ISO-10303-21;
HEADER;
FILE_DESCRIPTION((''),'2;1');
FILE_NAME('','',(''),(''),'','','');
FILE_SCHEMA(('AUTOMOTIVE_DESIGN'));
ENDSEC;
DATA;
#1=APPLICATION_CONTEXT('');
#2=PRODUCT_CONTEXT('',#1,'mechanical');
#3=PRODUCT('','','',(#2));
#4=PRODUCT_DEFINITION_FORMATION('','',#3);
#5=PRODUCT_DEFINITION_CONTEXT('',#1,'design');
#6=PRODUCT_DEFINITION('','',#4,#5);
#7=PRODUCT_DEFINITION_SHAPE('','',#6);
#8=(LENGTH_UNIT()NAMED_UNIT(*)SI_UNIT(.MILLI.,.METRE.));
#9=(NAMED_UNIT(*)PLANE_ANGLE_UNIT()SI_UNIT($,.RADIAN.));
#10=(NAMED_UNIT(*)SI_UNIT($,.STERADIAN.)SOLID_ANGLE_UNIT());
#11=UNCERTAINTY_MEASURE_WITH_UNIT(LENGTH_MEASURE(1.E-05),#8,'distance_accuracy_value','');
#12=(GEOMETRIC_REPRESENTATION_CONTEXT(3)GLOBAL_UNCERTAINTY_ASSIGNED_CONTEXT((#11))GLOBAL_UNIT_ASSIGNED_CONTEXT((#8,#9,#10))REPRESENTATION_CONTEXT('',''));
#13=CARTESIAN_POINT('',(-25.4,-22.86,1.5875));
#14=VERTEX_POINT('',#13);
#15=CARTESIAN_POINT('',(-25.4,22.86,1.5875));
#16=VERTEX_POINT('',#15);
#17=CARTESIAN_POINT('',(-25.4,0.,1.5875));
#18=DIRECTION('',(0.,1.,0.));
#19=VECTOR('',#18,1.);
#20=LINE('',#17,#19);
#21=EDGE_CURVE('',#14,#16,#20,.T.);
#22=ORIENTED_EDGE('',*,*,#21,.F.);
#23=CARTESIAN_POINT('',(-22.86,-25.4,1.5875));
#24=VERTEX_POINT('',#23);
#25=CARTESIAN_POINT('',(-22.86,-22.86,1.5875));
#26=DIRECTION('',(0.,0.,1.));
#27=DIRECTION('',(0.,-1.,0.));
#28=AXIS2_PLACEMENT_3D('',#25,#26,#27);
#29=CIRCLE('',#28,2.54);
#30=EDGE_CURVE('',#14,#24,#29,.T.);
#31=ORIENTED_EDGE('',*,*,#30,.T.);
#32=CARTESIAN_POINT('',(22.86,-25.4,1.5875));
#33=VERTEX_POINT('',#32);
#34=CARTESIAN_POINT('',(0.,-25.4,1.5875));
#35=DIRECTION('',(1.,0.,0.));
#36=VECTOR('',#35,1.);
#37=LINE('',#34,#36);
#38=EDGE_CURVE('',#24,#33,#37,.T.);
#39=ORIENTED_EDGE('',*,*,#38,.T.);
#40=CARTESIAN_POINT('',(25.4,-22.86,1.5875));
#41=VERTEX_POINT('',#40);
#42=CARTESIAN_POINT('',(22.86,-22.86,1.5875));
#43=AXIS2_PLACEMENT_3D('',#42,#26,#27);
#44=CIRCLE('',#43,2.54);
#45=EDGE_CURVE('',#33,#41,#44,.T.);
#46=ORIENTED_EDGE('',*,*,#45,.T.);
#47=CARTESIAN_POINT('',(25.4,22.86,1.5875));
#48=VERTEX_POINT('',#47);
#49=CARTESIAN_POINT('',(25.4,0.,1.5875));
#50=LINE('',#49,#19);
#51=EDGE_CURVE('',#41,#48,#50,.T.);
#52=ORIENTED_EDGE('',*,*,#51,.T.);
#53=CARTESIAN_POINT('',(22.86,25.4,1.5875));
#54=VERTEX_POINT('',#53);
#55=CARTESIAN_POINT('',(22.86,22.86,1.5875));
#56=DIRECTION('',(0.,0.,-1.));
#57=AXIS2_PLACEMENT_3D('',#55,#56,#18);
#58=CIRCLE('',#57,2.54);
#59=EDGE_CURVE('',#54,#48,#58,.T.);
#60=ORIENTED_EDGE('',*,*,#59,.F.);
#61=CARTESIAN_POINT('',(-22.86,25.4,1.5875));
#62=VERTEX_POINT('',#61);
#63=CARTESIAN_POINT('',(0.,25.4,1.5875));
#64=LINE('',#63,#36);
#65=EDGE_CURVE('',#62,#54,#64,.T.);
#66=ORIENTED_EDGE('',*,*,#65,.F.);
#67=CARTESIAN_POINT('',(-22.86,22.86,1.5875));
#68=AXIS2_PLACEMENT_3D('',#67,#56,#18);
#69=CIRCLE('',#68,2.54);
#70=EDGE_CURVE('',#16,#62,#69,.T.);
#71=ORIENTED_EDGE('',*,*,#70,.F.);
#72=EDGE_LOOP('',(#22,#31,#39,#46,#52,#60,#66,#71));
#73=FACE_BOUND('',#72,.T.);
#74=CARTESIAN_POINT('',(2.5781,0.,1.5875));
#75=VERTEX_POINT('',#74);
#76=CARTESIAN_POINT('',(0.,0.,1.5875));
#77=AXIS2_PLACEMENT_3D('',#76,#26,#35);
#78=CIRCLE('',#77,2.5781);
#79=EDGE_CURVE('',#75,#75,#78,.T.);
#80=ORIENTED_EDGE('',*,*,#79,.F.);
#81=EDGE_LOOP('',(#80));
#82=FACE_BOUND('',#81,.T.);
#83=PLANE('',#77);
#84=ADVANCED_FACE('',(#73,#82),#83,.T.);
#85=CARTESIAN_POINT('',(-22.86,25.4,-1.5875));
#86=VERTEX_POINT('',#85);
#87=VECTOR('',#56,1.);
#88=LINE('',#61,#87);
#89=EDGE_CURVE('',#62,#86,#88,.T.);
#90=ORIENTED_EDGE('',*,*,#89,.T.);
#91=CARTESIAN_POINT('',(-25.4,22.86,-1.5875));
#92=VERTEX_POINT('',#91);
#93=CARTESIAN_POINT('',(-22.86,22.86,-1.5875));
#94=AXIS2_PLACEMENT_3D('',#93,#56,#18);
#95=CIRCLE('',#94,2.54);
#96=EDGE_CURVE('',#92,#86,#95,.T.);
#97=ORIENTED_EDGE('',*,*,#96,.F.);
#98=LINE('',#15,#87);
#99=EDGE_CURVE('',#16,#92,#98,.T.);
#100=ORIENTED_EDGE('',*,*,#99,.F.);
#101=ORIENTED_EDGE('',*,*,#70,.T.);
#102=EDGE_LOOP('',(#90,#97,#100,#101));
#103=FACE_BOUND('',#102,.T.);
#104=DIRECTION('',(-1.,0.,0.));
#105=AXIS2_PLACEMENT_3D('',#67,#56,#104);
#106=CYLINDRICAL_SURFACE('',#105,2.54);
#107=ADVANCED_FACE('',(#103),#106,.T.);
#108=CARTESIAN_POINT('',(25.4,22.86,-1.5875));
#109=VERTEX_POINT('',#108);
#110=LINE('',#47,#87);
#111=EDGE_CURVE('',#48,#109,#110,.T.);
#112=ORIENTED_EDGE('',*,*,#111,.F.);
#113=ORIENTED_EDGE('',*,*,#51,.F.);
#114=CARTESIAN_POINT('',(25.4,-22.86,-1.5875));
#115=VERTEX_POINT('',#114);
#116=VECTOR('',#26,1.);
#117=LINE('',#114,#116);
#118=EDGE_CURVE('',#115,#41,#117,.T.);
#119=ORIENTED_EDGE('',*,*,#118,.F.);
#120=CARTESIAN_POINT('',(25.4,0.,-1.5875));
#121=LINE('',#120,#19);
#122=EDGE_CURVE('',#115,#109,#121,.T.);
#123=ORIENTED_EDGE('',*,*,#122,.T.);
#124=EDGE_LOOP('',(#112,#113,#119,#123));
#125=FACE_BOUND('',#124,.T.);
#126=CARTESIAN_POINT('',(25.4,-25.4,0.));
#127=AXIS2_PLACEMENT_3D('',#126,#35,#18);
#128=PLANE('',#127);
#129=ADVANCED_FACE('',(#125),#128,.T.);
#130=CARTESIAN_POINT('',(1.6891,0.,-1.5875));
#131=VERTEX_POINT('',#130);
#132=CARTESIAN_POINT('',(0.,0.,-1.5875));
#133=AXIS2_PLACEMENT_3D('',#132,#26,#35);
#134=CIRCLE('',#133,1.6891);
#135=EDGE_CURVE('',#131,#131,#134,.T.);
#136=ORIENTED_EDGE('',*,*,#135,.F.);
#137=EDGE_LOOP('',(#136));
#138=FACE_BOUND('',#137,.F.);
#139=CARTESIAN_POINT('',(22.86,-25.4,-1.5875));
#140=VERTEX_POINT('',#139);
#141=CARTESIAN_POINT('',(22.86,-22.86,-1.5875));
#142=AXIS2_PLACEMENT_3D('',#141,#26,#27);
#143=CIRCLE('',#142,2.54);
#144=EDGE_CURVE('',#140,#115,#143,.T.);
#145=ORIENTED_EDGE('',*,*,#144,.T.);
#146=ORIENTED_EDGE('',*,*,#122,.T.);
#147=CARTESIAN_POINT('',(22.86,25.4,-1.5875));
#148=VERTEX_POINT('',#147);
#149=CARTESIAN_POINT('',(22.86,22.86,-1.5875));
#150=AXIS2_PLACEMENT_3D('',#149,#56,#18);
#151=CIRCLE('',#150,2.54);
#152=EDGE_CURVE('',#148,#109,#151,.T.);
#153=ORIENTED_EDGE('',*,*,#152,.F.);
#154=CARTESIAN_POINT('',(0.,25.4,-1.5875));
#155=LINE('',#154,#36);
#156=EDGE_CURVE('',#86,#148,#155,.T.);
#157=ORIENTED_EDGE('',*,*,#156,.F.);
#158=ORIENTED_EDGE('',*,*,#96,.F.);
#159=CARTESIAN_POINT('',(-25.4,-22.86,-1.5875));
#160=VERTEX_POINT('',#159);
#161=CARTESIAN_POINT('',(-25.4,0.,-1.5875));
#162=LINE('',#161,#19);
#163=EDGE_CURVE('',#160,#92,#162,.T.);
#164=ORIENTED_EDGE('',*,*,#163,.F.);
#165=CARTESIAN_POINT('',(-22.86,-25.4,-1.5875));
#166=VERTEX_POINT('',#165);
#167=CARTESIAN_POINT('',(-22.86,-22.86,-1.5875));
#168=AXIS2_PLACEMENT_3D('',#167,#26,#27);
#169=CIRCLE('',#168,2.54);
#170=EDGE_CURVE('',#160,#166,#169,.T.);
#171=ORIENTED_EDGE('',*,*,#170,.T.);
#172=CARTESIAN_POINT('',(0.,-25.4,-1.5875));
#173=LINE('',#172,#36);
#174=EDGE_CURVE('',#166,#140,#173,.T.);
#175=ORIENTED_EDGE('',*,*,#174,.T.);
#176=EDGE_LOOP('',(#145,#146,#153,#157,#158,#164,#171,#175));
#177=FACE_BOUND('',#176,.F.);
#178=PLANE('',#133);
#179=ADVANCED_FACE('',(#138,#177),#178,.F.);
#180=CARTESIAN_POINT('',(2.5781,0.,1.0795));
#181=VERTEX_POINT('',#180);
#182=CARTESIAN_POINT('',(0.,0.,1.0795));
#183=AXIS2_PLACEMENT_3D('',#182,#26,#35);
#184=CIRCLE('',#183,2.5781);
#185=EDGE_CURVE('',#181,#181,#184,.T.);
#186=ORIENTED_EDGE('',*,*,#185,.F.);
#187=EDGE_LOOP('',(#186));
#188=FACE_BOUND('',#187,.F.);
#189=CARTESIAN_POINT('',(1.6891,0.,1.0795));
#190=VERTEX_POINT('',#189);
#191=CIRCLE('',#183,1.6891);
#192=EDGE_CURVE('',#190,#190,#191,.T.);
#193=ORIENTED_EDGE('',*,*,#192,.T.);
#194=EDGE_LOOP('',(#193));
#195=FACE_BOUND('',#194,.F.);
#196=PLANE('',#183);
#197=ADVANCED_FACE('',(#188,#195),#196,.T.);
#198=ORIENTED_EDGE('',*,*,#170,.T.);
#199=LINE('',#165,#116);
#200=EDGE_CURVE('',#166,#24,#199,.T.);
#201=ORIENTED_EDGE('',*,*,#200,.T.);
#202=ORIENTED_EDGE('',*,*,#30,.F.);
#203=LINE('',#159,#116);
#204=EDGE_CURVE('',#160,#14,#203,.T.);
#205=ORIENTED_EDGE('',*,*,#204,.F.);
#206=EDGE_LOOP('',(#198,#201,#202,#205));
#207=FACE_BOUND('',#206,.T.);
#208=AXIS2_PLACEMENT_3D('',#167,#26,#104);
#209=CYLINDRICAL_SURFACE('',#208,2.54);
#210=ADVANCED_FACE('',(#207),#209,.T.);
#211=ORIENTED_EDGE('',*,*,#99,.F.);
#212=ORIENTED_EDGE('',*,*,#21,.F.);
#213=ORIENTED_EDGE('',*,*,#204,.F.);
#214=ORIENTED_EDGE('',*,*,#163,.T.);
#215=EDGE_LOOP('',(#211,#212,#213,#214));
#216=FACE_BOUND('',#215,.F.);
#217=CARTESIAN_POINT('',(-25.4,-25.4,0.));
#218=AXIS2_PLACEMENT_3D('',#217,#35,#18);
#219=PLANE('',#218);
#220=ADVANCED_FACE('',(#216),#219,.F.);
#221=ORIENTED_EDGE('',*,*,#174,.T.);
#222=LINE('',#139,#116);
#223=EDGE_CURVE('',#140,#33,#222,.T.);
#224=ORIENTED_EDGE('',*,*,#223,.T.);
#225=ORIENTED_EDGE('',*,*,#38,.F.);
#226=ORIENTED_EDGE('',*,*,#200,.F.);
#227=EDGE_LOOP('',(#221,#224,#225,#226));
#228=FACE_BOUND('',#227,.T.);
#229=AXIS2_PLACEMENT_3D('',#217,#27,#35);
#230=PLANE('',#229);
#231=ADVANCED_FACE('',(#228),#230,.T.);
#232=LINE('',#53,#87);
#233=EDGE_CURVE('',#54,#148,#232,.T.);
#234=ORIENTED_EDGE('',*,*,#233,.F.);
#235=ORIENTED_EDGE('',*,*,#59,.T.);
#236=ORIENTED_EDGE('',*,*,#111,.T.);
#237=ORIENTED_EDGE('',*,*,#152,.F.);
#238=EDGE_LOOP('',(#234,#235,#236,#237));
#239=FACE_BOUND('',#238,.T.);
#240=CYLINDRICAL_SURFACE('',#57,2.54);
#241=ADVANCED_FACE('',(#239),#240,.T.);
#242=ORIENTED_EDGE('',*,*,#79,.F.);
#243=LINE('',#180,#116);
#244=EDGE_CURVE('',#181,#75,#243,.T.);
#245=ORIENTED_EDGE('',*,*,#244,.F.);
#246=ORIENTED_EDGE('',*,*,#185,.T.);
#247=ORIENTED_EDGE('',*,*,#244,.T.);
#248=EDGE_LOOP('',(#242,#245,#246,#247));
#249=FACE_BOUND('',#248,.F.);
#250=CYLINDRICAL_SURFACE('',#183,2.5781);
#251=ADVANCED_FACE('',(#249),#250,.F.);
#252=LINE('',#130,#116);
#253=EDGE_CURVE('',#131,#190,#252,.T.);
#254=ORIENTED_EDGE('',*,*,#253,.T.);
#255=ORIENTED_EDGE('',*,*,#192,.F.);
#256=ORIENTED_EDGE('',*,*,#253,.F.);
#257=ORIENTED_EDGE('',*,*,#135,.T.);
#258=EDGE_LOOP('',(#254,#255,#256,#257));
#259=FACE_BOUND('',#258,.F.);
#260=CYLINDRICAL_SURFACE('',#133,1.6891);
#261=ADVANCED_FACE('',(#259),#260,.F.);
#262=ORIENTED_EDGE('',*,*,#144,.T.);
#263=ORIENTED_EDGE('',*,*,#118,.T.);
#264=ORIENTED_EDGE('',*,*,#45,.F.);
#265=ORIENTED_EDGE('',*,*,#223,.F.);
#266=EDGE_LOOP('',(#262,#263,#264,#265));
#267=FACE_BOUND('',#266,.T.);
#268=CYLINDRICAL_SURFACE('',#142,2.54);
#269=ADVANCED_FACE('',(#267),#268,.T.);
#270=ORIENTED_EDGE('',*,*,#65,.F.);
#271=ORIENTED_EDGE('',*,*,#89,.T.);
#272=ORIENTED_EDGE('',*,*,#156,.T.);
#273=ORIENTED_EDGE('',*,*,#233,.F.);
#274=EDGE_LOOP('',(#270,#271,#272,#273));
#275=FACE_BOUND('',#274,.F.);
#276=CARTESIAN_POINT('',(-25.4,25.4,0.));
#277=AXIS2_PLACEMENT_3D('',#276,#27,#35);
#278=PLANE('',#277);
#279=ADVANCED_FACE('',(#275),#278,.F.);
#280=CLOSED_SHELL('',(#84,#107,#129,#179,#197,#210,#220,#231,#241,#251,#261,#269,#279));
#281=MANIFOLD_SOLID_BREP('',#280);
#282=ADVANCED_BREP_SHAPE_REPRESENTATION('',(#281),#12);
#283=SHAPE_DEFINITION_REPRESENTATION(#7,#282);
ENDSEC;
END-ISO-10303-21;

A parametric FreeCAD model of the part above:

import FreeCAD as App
import Part
import Sketcher
Q = App.Units.Quantity


def edges_at(feature, points):
    """Names of the edges that pass closest to the given points."""
    edges = feature.Shape.Edges
    near = lambda p: min(range(len(edges)), key=lambda i: edges[i].distToShape(Part.Vertex(*p))[0])
    return sorted({f"Edge{near(p) + 1}" for p in points})

doc = App.newDocument("Part")
body = doc.addObject("PartDesign::Body", "Body")

sketch1 = body.newObject("Sketcher::SketchObject", "Sketch")
sketch1.AttachmentSupport = (doc.getObject("XY_Plane"), [""])
sketch1.MapMode = "FlatFace"
sketch1.addGeometry(Part.LineSegment(App.Vector(-25.4, 25.4, 0), App.Vector(-25.4, -25.4, 0)), False)
sketch1.addGeometry(Part.LineSegment(App.Vector(-25.4, -25.4, 0), App.Vector(25.4, -25.4, 0)), False)
sketch1.addGeometry(Part.LineSegment(App.Vector(25.4, -25.4, 0), App.Vector(25.4, 25.4, 0)), False)
sketch1.addGeometry(Part.LineSegment(App.Vector(25.4, 25.4, 0), App.Vector(-25.4, 25.4, 0)), False)
sketch1.addConstraint(Sketcher.Constraint("Coincident", 0, 2, 1, 1))
sketch1.addConstraint(Sketcher.Constraint("Coincident", 1, 2, 2, 1))
sketch1.addConstraint(Sketcher.Constraint("Coincident", 2, 2, 3, 1))
sketch1.addConstraint(Sketcher.Constraint("Coincident", 3, 2, 0, 1))
sketch1.addConstraint(Sketcher.Constraint("Vertical", 0))
sketch1.addConstraint(Sketcher.Constraint("Horizontal", 1))
sketch1.addConstraint(Sketcher.Constraint("Vertical", 2))
sketch1.addConstraint(Sketcher.Constraint("Horizontal", 3))
sketch1.addConstraint(Sketcher.Constraint("Symmetric", 0, 2, 2, 2, -1, 1))
sketch1.addConstraint(Sketcher.Constraint("Equal", 3, 0))
sketch1.addConstraint(Sketcher.Constraint("DistanceX", 1, 1, 1, 2, Q("2 in")))
pad1 = body.newObject("PartDesign::Pad", "Pad")
pad1.Profile = sketch1
pad1.Length = Q("0.125 in")
pad1.Midplane = True

sketch2 = body.newObject("Sketcher::SketchObject", "Sketch001")
sketch2.AttachmentSupport = (doc.getObject("XZ_Plane"), [""])
sketch2.MapMode = "FlatFace"
sketch2.addGeometry(Part.LineSegment(App.Vector(2.5781, 1.5875, 0), App.Vector(0, 1.5875, 0)), False)
sketch2.addGeometry(Part.LineSegment(App.Vector(0, 1.5875, 0), App.Vector(0, -1.5875, 0)), False)
sketch2.addGeometry(Part.LineSegment(App.Vector(0, -1.5875, 0), App.Vector(1.6891, -1.5875, 0)), False)
sketch2.addGeometry(Part.LineSegment(App.Vector(1.6891, -1.5875, 0), App.Vector(1.6891, 1.0795, 0)), False)
sketch2.addGeometry(Part.LineSegment(App.Vector(1.6891, 1.0795, 0), App.Vector(2.5781, 1.0795, 0)), False)
sketch2.addGeometry(Part.LineSegment(App.Vector(2.5781, 1.0795, 0), App.Vector(2.5781, 1.5875, 0)), False)
sketch2.addConstraint(Sketcher.Constraint("Coincident", 0, 2, 1, 1))
sketch2.addConstraint(Sketcher.Constraint("Coincident", 1, 2, 2, 1))
sketch2.addConstraint(Sketcher.Constraint("Coincident", 2, 2, 3, 1))
sketch2.addConstraint(Sketcher.Constraint("Coincident", 3, 2, 4, 1))
sketch2.addConstraint(Sketcher.Constraint("Coincident", 4, 2, 5, 1))
sketch2.addConstraint(Sketcher.Constraint("Coincident", 5, 2, 0, 1))
sketch2.addConstraint(Sketcher.Constraint("Horizontal", 0))
sketch2.addConstraint(Sketcher.Constraint("Vertical", 1))
sketch2.addConstraint(Sketcher.Constraint("Horizontal", 2))
sketch2.addConstraint(Sketcher.Constraint("Vertical", 3))
sketch2.addConstraint(Sketcher.Constraint("Horizontal", 4))
sketch2.addConstraint(Sketcher.Constraint("Vertical", 5))
sketch2.addConstraint(Sketcher.Constraint("Symmetric", 0, 2, 1, 2, -1, 1))
sketch2.addConstraint(Sketcher.Constraint("DistanceY", 5, 1, 5, 2, Q("0.02 in")))
sketch2.addConstraint(Sketcher.Constraint("DistanceX", 4, 1, 4, 2, Q("0.035 in")))
sketch2.addConstraint(Sketcher.Constraint("DistanceY", 1, 2, 1, 1, Q("0.125 in")))
sketch2.addConstraint(Sketcher.Constraint("DistanceX", 0, 2, 0, 1, Q("0.1015 in")))
groove = body.newObject("PartDesign::Groove", "Groove")
groove.Profile = sketch2
groove.ReferenceAxis = (sketch2, ["V_Axis"])
groove.Angle = 360
doc.recompute()

fillet = body.newObject("PartDesign::Fillet", "Fillet")
fillet.Base = (groove, edges_at(groove, [
    (-25.4, -25.4, 0),
    (25.4, -25.4, 0),
    (25.4, 25.4, 0),
    (-25.4, 25.4, 0),
]))
fillet.Radius = Q("0.1 in")

doc.recompute()
